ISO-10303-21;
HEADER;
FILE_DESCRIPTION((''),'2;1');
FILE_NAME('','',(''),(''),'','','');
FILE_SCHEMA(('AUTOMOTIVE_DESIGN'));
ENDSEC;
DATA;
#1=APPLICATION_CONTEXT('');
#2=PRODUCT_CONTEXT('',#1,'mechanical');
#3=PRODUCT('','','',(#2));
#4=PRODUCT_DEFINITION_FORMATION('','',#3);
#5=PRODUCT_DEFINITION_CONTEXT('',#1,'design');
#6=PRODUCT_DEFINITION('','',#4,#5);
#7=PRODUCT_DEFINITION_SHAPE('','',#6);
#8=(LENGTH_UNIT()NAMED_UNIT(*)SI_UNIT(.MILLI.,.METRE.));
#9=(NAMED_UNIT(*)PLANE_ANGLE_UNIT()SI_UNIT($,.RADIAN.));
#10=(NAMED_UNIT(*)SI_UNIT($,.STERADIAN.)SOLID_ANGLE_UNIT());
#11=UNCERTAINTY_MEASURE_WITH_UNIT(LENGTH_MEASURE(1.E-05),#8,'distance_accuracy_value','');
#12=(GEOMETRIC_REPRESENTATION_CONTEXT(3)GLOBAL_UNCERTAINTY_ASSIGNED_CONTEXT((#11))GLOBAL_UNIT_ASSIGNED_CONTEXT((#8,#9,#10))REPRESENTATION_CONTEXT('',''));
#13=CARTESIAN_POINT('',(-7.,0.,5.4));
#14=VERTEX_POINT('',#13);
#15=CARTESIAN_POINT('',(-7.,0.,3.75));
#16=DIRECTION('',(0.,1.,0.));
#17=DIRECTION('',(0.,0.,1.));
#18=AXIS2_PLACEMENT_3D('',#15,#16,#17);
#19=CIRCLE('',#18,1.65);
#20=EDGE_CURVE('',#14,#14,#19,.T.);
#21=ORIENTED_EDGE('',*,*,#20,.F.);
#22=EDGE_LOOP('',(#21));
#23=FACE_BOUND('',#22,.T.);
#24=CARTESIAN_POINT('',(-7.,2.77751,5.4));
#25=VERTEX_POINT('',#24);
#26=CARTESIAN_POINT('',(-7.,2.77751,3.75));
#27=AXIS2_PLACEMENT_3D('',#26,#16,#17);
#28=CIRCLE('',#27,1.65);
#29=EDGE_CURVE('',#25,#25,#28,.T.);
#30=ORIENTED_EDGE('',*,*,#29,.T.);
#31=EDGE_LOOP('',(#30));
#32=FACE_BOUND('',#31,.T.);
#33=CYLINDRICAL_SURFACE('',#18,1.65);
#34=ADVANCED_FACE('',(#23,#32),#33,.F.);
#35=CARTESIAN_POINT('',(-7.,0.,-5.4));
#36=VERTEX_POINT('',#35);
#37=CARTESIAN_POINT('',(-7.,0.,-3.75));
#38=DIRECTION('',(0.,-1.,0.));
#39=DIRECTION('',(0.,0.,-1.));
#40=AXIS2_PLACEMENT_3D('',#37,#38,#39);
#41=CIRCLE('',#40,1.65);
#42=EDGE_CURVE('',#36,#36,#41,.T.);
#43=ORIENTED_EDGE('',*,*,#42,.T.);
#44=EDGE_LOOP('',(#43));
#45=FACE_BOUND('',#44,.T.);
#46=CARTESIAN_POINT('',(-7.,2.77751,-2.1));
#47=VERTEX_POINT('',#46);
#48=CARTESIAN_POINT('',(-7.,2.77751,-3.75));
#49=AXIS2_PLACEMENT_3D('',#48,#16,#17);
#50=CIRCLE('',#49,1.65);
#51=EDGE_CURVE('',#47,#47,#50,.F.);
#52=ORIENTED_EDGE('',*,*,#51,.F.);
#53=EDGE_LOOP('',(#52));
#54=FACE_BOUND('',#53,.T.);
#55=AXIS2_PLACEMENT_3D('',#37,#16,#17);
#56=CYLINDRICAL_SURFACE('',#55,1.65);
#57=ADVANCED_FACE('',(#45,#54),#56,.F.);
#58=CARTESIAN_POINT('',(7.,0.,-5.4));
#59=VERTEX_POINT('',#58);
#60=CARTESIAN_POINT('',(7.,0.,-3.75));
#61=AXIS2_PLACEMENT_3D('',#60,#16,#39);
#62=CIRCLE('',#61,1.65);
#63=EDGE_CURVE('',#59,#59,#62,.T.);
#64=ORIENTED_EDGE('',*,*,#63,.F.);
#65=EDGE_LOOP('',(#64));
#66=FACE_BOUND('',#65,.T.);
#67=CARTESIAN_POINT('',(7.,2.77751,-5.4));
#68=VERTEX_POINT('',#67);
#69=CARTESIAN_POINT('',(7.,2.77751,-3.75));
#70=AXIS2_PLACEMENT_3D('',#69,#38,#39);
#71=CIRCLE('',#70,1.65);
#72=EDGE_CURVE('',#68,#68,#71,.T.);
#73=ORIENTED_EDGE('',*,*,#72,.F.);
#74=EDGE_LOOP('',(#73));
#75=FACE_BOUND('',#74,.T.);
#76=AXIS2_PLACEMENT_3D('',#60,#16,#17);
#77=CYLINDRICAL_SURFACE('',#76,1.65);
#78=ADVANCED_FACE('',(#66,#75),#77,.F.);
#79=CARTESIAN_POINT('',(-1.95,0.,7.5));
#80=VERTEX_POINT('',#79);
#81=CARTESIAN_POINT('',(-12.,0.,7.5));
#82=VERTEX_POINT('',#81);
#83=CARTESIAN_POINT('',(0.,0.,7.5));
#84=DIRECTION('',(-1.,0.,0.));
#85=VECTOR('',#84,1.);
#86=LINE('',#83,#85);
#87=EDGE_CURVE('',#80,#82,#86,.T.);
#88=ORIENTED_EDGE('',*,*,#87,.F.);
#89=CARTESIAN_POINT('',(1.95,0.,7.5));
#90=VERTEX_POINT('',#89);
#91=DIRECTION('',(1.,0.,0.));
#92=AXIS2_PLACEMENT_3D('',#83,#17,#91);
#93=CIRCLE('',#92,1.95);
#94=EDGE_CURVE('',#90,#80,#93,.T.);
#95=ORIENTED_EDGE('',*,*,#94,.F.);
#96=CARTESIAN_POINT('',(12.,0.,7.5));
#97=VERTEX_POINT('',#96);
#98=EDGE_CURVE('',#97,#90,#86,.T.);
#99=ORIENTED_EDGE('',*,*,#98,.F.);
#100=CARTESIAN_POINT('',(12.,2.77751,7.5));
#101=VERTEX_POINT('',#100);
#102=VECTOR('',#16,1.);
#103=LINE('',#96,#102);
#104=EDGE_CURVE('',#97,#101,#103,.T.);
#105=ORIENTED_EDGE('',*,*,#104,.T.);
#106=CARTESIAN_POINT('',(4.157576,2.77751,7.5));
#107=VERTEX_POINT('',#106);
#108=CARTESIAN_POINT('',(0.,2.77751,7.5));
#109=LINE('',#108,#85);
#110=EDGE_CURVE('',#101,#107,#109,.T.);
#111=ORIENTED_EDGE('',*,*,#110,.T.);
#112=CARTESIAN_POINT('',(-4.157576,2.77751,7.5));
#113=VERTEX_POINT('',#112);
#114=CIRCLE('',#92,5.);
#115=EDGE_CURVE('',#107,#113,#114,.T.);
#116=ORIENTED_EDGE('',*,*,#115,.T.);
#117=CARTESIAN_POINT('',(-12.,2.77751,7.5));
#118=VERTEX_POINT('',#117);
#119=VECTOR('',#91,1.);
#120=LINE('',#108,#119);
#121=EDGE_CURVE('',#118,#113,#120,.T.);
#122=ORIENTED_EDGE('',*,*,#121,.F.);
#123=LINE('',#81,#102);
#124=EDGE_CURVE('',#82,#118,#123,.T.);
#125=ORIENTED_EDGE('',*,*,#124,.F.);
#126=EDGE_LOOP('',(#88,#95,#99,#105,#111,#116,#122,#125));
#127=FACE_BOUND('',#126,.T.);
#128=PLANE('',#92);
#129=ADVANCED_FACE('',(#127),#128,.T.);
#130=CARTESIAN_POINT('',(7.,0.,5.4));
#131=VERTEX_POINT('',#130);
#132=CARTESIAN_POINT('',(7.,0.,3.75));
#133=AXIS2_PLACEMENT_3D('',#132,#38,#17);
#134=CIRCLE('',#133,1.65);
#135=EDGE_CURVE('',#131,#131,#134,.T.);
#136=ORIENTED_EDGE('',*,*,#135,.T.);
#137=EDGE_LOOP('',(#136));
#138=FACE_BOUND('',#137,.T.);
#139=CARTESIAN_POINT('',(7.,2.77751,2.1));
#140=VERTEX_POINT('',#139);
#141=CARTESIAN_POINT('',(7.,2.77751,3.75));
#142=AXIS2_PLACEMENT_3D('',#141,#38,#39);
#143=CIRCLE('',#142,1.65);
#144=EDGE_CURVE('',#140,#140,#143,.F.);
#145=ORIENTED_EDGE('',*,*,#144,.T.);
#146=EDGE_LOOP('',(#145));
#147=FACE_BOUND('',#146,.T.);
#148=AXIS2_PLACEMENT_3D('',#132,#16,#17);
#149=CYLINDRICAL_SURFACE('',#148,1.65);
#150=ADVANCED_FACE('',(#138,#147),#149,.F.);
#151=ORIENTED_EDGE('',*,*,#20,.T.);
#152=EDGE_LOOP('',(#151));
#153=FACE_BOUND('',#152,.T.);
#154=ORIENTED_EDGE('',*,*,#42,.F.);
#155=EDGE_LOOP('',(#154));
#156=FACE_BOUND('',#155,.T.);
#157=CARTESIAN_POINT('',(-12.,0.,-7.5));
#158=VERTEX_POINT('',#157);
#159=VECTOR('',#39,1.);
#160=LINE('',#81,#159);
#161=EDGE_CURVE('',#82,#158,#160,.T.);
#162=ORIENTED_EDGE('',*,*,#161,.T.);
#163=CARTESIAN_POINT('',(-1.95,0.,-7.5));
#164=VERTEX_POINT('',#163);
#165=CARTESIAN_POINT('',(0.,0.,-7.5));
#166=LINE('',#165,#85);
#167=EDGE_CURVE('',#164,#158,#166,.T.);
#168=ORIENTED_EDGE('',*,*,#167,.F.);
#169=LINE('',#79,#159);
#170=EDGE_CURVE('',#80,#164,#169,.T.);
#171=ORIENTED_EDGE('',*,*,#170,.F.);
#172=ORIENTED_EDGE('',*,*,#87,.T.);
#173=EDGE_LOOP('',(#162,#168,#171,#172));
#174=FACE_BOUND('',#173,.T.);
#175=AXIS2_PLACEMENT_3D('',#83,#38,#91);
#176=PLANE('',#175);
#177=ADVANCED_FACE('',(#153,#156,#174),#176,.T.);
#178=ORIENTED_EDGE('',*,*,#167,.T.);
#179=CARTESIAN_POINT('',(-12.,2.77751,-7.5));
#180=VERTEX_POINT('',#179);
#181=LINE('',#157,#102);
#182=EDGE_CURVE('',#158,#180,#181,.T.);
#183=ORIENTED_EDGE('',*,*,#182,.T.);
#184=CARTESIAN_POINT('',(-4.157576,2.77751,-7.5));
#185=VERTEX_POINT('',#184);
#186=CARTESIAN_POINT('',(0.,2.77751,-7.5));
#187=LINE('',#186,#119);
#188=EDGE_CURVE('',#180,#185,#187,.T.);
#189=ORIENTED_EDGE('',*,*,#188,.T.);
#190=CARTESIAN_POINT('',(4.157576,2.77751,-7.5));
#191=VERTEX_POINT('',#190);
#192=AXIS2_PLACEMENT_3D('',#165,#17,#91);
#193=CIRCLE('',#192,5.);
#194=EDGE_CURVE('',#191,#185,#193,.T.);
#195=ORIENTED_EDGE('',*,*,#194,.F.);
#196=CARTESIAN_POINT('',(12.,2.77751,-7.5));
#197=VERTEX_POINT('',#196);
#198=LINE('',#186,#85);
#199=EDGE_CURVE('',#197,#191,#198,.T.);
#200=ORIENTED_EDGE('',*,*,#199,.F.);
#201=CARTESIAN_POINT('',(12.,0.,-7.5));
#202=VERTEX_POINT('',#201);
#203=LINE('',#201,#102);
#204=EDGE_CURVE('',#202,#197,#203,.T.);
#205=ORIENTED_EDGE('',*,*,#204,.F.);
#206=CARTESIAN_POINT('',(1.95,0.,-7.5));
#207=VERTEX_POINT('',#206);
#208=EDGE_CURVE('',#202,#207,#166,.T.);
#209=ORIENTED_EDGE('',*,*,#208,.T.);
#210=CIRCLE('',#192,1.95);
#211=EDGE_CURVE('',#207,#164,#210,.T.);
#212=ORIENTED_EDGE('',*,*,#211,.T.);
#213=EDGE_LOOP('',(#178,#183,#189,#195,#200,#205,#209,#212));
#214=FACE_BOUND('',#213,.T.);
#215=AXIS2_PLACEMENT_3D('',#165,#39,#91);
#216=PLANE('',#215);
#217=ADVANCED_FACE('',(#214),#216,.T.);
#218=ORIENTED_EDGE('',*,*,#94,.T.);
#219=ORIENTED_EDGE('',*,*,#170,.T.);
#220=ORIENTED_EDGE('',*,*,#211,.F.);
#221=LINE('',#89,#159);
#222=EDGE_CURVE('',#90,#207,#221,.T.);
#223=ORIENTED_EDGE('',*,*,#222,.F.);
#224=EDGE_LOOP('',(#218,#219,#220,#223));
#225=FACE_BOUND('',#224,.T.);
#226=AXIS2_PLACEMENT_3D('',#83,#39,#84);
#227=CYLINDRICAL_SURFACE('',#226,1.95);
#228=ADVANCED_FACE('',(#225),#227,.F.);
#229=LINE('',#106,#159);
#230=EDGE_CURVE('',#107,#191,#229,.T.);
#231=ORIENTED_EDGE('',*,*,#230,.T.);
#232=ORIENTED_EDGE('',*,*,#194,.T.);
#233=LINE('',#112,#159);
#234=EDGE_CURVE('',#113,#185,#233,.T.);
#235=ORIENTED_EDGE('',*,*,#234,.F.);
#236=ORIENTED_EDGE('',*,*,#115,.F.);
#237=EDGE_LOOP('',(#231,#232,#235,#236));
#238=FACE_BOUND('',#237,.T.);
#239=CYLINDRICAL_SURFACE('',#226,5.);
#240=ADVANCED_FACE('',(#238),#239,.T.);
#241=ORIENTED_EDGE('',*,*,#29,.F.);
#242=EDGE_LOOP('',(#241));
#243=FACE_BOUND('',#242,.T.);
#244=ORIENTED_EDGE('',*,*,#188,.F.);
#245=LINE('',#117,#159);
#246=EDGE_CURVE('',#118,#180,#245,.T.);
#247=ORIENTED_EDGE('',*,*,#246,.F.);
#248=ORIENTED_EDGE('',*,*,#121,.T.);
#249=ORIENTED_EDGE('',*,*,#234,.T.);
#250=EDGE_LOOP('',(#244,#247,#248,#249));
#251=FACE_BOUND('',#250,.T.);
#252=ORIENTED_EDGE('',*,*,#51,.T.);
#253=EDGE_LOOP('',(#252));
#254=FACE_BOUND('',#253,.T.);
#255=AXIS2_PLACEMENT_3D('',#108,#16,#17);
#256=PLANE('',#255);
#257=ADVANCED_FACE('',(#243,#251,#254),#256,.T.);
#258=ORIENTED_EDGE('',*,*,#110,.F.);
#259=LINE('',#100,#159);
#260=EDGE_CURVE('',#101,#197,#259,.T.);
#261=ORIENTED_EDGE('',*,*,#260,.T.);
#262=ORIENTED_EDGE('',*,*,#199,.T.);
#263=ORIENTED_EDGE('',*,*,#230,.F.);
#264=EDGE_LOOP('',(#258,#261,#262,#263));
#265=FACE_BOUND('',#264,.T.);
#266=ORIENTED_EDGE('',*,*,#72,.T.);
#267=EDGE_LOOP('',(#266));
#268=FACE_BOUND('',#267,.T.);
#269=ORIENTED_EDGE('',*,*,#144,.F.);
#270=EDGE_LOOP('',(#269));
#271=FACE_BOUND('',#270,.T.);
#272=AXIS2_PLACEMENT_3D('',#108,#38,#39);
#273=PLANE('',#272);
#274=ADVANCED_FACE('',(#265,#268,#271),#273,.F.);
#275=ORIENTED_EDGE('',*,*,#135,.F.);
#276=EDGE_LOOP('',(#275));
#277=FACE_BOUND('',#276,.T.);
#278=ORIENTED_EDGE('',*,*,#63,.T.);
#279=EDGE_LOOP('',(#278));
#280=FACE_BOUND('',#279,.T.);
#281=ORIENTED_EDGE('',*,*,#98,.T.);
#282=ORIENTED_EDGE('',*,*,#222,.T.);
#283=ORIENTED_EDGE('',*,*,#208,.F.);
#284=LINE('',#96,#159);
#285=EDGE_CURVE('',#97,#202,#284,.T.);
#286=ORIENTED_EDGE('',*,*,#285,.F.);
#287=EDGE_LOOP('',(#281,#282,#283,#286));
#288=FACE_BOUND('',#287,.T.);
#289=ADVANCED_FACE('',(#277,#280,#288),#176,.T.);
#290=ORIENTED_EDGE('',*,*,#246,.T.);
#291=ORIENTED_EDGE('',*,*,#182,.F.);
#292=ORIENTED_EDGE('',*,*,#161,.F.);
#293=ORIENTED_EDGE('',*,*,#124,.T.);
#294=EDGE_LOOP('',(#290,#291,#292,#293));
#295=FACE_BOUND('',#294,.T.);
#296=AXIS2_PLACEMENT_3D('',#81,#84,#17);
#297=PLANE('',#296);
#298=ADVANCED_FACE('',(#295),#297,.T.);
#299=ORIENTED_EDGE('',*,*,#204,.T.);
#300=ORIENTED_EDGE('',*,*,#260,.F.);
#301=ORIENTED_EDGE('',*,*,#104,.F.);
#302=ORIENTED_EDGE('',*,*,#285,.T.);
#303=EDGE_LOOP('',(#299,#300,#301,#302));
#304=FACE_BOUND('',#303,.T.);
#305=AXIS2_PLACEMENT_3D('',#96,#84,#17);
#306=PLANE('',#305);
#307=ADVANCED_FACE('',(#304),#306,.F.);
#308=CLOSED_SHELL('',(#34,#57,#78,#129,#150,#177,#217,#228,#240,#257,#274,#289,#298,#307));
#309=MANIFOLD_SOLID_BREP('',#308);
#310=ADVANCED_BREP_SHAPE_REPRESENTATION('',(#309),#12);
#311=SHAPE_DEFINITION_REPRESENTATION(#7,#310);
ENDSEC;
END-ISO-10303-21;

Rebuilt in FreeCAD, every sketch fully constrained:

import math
import FreeCAD as App
import Part
import Sketcher

V = App.Vector

doc = App.newDocument("Part")
params = doc.addObject("Spreadsheet::Sheet", "Params")
for row, (alias, value) in enumerate([
    ("sketch1_radius", "5 mm"),
    ("sketch1_radius2", "1.95 mm"),
    ("pad1_length", "7.5 mm"),
    ("sketch2_diameter", "3.3 mm"),
    ("pocket1_length", "30.841953 mm"),
    ("sketch3_diameter", "3.3 mm"),
    ("pocket2_length", "30.841953 mm"),
], start=1):
    params.set(f"A{row}", alias)
    params.set(f"B{row}", "=" + value)
    params.setAlias(f"B{row}", alias)

body = doc.addObject("PartDesign::Body", "Body")

sketch1 = body.newObject("Sketcher::SketchObject", "Sketch")
sketch1.AttachmentSupport = (doc.getObject("XY_Plane"), [""])
sketch1.MapMode = "FlatFace"
sketch1.addGeometry([
    Part.LineSegment(V(-12, 0, 0), V(-1.95, 0, 0)),
    Part.ArcOfCircle(Part.Circle(V(0, 0, 0), V(0, 0, 1), 1.95), math.radians(90), math.radians(180)),
    Part.ArcOfCircle(Part.Circle(V(0, 0, 0), V(0, 0, 1), 1.95), math.radians(0), math.radians(90)),
    Part.LineSegment(V(1.95, 0, 0), V(12, 0, 0)),
    Part.LineSegment(V(12, 0, 0), V(12, 2.77751, 0)),
    Part.LineSegment(V(12, 2.77751, 0), V(4.157576, 2.77751, 0)),
    Part.ArcOfCircle(Part.Circle(V(0, 0, 0), V(0, 0, 1), 5), math.radians(33.745303), math.radians(90)),
    Part.ArcOfCircle(Part.Circle(V(0, 0, 0), V(0, 0, 1), 5), math.radians(90), math.radians(146.254697)),
    Part.LineSegment(V(-4.157576, 2.77751, 0), V(-12, 2.77751, 0)),
    Part.LineSegment(V(-12, 2.77751, 0), V(-12, 0, 0)),
], False)
sketch1.addConstraint([
    Sketcher.Constraint("Coincident", 0, 2, 1, 2),
    Sketcher.Constraint("Tangent", 1, 1, 2, 2),
    Sketcher.Constraint("Coincident", 2, 1, 3, 1),
    Sketcher.Constraint("Coincident", 3, 2, 4, 1),
    Sketcher.Constraint("Coincident", 4, 2, 5, 1),
    Sketcher.Constraint("Coincident", 5, 2, 6, 1),
    Sketcher.Constraint("Tangent", 6, 2, 7, 1),
    Sketcher.Constraint("Coincident", 7, 2, 8, 1),
    Sketcher.Constraint("Coincident", 8, 2, 9, 1),
    Sketcher.Constraint("Coincident", 9, 2, 0, 1),
    Sketcher.Constraint("Horizontal", 0),
    Sketcher.Constraint("Horizontal", 3),
    Sketcher.Constraint("Vertical", 4),
    Sketcher.Constraint("Horizontal", 5),
    Sketcher.Constraint("Horizontal", 8),
    Sketcher.Constraint("Vertical", 9),
    Sketcher.Constraint("Coincident", 1, 3, -1, 1),
    Sketcher.Constraint("Coincident", 6, 3, -1, 1),
    Sketcher.Constraint("Equal", 1, 2),
    Sketcher.Constraint("Equal", 6, 7),
    Sketcher.Constraint("Symmetric", 3, 2, 9, 2, -1, 1),
    Sketcher.Constraint("PointOnObject", 0, 2, -1),
    Sketcher.Constraint("PointOnObject", 1, 1, -2),
    Sketcher.Constraint("PointOnObject", 6, 2, -2),
    Sketcher.Constraint("Horizontal", 5, 2, 7, 2),
    Sketcher.Constraint("Radius", 6, 5.0),
    Sketcher.Constraint("Radius", 1, 1.95),
    Sketcher.Constraint("DistanceX", -1, 1, 3, 2, 12.0),
    Sketcher.Constraint("DistanceY", 4, 1, 4, 2, 2.77751),
])
sketch1.setExpression("Constraints[25]", "Params.sketch1_radius")
sketch1.setExpression("Constraints[26]", "Params.sketch1_radius2")
pad1 = body.newObject("PartDesign::Pad", "Pad")
pad1.Profile = sketch1
pad1.setExpression("Length", "Params.pad1_length")

sketch2 = body.newObject("Sketcher::SketchObject", "Sketch001")
sketch2.AttachmentSupport = (doc.getObject("XZ_Plane"), [""])
sketch2.MapMode = "FlatFace"
sketch2.AttachmentOffset = App.Placement(V(0, 0, -2.77751), App.Rotation())
sketch2.addGeometry(Part.Circle(V(-7, 3.75, 0), V(0, 0, 1), 1.65), False)
sketch2.addConstraint([
    Sketcher.Constraint("Diameter", 0, 3.3),
    Sketcher.Constraint("DistanceX", 0, 3, -1, 1, 7.0),
    Sketcher.Constraint("DistanceY", -1, 1, 0, 3, 3.75),
])
sketch2.setExpression("Constraints[0]", "Params.sketch2_diameter")
pocket1 = body.newObject("PartDesign::Pocket", "Pocket")
pocket1.Profile = sketch2
pocket1.setExpression("Length", "Params.pocket1_length")
pocket1.Midplane = True
doc.recompute()

mirrored = body.newObject("PartDesign::Mirrored", "Mirrored")
mirrored.Originals = [pocket1]
mirrored.MirrorPlane = (doc.getObject("YZ_Plane"), [""])
body.Tip = mirrored
doc.recompute()

mirrored2 = body.newObject("PartDesign::Mirrored", "Mirrored001")
mirrored2.Originals = [pad1, pocket1]
mirrored2.MirrorPlane = (doc.getObject("XY_Plane"), [""])
body.Tip = mirrored2

sketch3 = body.newObject("Sketcher::SketchObject", "Sketch002")
sketch3.AttachmentSupport = (doc.getObject("XZ_Plane"), [""])
sketch3.MapMode = "FlatFace"
sketch3.AttachmentOffset = App.Placement(V(0, 0, -2.77751), App.Rotation())
sketch3.addGeometry(Part.Circle(V(7, -3.75, 0), V(0, 0, 1), 1.65), False)
sketch3.addConstraint([
    Sketcher.Constraint("Diameter", 0, 3.3),
    Sketcher.Constraint("DistanceX", -1, 1, 0, 3, 7.0),
    Sketcher.Constraint("DistanceY", 0, 3, -1, 1, 3.75),
])
sketch3.setExpression("Constraints[0]", "Params.sketch3_diameter")
pocket2 = body.newObject("PartDesign::Pocket", "Pocket001")
pocket2.Profile = sketch3
pocket2.setExpression("Length", "Params.pocket2_length")
pocket2.Midplane = True

doc.recompute()
